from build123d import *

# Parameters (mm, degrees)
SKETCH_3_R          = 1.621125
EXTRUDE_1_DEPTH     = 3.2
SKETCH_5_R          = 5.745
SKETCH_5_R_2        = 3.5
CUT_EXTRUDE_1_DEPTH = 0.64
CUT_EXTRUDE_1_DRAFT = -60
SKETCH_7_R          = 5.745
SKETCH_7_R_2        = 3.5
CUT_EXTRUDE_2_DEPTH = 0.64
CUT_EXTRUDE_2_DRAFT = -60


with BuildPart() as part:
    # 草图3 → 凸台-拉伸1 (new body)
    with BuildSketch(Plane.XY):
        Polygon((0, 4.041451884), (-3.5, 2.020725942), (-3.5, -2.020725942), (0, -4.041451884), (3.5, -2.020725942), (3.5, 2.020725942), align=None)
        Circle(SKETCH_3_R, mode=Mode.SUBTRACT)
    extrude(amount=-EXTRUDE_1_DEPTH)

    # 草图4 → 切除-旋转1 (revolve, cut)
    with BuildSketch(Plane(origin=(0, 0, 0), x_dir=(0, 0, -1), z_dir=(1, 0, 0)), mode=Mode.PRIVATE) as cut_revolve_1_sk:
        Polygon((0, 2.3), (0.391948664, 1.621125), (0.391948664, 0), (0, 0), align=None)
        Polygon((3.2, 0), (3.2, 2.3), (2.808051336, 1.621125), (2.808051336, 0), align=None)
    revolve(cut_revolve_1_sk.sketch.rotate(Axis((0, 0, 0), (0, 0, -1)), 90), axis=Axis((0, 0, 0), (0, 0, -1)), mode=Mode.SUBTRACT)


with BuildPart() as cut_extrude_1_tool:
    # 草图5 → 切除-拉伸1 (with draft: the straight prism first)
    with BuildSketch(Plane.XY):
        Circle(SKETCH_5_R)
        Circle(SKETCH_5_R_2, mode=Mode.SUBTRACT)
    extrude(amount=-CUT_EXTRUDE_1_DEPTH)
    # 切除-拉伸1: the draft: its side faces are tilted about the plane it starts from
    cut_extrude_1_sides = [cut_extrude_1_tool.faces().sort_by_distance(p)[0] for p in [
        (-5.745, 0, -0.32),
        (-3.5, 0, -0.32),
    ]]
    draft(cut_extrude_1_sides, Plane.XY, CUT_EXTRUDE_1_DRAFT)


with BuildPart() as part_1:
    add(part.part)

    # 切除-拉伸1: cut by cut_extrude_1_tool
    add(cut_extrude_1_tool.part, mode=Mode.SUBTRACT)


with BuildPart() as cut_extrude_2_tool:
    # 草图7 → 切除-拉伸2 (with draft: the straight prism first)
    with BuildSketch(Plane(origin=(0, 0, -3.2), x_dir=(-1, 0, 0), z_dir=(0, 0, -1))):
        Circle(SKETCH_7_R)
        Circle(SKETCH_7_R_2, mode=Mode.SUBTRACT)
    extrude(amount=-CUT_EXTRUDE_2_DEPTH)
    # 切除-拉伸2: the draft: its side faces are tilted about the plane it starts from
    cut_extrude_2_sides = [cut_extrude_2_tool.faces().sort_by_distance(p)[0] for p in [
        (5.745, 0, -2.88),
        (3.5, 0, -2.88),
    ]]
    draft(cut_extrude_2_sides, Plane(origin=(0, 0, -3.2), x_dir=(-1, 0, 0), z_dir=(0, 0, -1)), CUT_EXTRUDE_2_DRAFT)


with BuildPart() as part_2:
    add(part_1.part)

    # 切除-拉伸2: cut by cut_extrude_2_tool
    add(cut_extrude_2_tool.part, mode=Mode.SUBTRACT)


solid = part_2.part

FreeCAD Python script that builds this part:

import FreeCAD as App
import Part
import Sketcher
Q = App.Units.Quantity


def faces_at(feature, points):
    """Names of the faces that lie closest to the given points."""
    faces = feature.Shape.Faces
    near = lambda p: min(range(len(faces)), key=lambda i: faces[i].distToShape(Part.Vertex(*p))[0])
    return sorted({f"Face{near(p) + 1}" for p in points})

doc = App.newDocument("Part")
body = doc.addObject("PartDesign::Body", "Body")

sketch1 = body.newObject("Sketcher::SketchObject", "Sketch")
sketch1.AttachmentSupport = (doc.getObject("XY_Plane"), [""])
sketch1.MapMode = "FlatFace"
sketch1.addGeometry([
    Part.LineSegment(App.Vector(0, 4, 0), App.Vector(-3.5, 2, 0)),
    Part.LineSegment(App.Vector(-3.5, 2, 0), App.Vector(-3.5, -2, 0)),
    Part.LineSegment(App.Vector(-3.5, -2, 0), App.Vector(0, -4, 0)),
    Part.LineSegment(App.Vector(0, -4, 0), App.Vector(3.5, -2, 0)),
    Part.LineSegment(App.Vector(3.5, -2, 0), App.Vector(3.5, 2, 0)),
    Part.LineSegment(App.Vector(3.5, 2, 0), App.Vector(0, 4, 0)),
    Part.Circle(App.Vector(0, 0, 0), App.Vector(0, 0, 1), 1.6),
], False)
sketch1.addConstraint([
    Sketcher.Constraint("Coincident", 0, 2, 1, 1),
    Sketcher.Constraint("Coincident", 1, 2, 2, 1),
    Sketcher.Constraint("Coincident", 2, 2, 3, 1),
    Sketcher.Constraint("Coincident", 3, 2, 4, 1),
    Sketcher.Constraint("Coincident", 4, 2, 5, 1),
    Sketcher.Constraint("Coincident", 5, 2, 0, 1),
    Sketcher.Constraint("Vertical", 1),
    Sketcher.Constraint("Vertical", 4),
    Sketcher.Constraint("Coincident", 6, 3, -1, 1),
    Sketcher.Constraint("Symmetric", 0, 2, 3, 2, -1, 1),
    Sketcher.Constraint("Symmetric", 2, 2, 5, 2, -1, 1),
    Sketcher.Constraint("PointOnObject", 2, 2, -2),
    Sketcher.Constraint("Parallel", 2, 5),
    Sketcher.Constraint("Horizontal", 1, 2, 3, 2),
    Sketcher.Constraint("Angle", 0, Q("-150 deg")),
    Sketcher.Constraint("DistanceX", 1, 2, 3, 2, 7.0),
    Sketcher.Constraint("Diameter", 6, 3.24225),
    Sketcher.Constraint("DistanceY", 1, 2, 1, 1, 4.041452),
])
pad1 = body.newObject("PartDesign::Pad", "Pad")
pad1.Profile = sketch1
pad1.Length = 3.2
pad1.Reversed = True

sketch2 = body.newObject("Sketcher::SketchObject", "Sketch001")
sketch2.AttachmentSupport = (doc.getObject("YZ_Plane"), [""])
sketch2.MapMode = "FlatFace"
sketch2.addGeometry([
    Part.LineSegment(App.Vector(1.62, -0.39, 0), App.Vector(2.3, 0, 0)),
    Part.LineSegment(App.Vector(2.3, 0, 0), App.Vector(0, 0, 0)),
    Part.LineSegment(App.Vector(0, 0, 0), App.Vector(0, -0.39, 0)),
    Part.LineSegment(App.Vector(0, -0.39, 0), App.Vector(1.62, -0.39, 0)),
    Part.LineSegment(App.Vector(0, -3.2, 0), App.Vector(2.3, -3.2, 0)),
    Part.LineSegment(App.Vector(2.3, -3.2, 0), App.Vector(1.62, -2.81, 0)),
    Part.LineSegment(App.Vector(1.62, -2.81, 0), App.Vector(0, -2.81, 0)),
    Part.LineSegment(App.Vector(0, -2.81, 0), App.Vector(0, -3.2, 0)),
], False)
sketch2.addConstraint([
    Sketcher.Constraint("Coincident", 0, 2, 1, 1),
    Sketcher.Constraint("Coincident", 1, 2, 2, 1),
    Sketcher.Constraint("Coincident", 2, 2, 3, 1),
    Sketcher.Constraint("Coincident", 3, 2, 0, 1),
    Sketcher.Constraint("Coincident", 4, 2, 5, 1),
    Sketcher.Constraint("Coincident", 5, 2, 6, 1),
    Sketcher.Constraint("Coincident", 6, 2, 7, 1),
    Sketcher.Constraint("Coincident", 7, 2, 4, 1),
    Sketcher.Constraint("Horizontal", 1),
    Sketcher.Constraint("Vertical", 2),
    Sketcher.Constraint("Horizontal", 3),
    Sketcher.Constraint("Horizontal", 4),
    Sketcher.Constraint("Horizontal", 6),
    Sketcher.Constraint("Vertical", 7),
    Sketcher.Constraint("Coincident", 1, 2, -1, 1),
    Sketcher.Constraint("PointOnObject", 6, 2, -2),
    Sketcher.Constraint("Vertical", 0, 2, 4, 2),
    Sketcher.Constraint("Vertical", 3, 2, 5, 2),
    Sketcher.Constraint("Equal", 2, 7),
    Sketcher.Constraint("Angle", 0, Q("30 deg")),
    Sketcher.Constraint("DistanceX", 1, 2, 1, 1, 2.3),
    Sketcher.Constraint("DistanceY", 4, 2, -1, 1, 3.2),
    Sketcher.Constraint("DistanceY", 2, 2, 2, 1, 0.391949),
])
groove = body.newObject("PartDesign::Groove", "Groove")
groove.Profile = sketch2
groove.ReferenceAxis = (sketch2, ["V_Axis"])
groove.Angle = 360
body2 = doc.addObject("PartDesign::Body", "Body001")

sketch3 = body2.newObject("Sketcher::SketchObject", "Sketch002")
sketch3.AttachmentSupport = (doc.getObject("XY_Plane001"), [""])
sketch3.MapMode = "FlatFace"
sketch3.addGeometry([
    Part.Circle(App.Vector(0, 0, 0), App.Vector(0, 0, 1), 5.7),
    Part.Circle(App.Vector(0, 0, 0), App.Vector(0, 0, 1), 3.5),
], False)
sketch3.addConstraint([
    Sketcher.Constraint("Coincident", 0, 3, -1, 1),
    Sketcher.Constraint("Coincident", 1, 3, -1, 1),
    Sketcher.Constraint("Diameter", 1, 7.0),
    Sketcher.Constraint("Diameter", 0, 11.49),
])
pad2 = body2.newObject("PartDesign::Pad", "Pad001")
pad2.Profile = sketch3
pad2.Length = 0.64
pad2.Reversed = True
doc.recompute()

draft = body2.newObject("PartDesign::Draft", "Draft")
draft.Base = (pad2, faces_at(pad2, [(-5.745, 0, -0.32), (-3.5, 0, -0.32)]))
draft.NeutralPlane = (doc.getObject("XY_Plane001"), [""])
draft.Angle = 60
draft.Reversed = True
doc.recompute()

boolean = body.newObject("PartDesign::Boolean", "Boolean")
boolean.Type = "Cut"
boolean.addObjects([body2])
body3 = doc.addObject("PartDesign::Body", "Body002")

sketch4 = body3.newObject("Sketcher::SketchObject", "Sketch003")
sketch4.AttachmentSupport = (doc.getObject("XY_Plane002"), [""])
sketch4.MapMode = "FlatFace"
sketch4.AttachmentOffset = App.Placement(App.Vector(0, 0, -3.2), App.Rotation())
sketch4.addGeometry([
    Part.Circle(App.Vector(0, 0, 0), App.Vector(0, 0, 1), 5.7),
    Part.Circle(App.Vector(0, 0, 0), App.Vector(0, 0, 1), 3.5),
], False)
sketch4.addConstraint([
    Sketcher.Constraint("Coincident", 0, 3, -1, 1),
    Sketcher.Constraint("Coincident", 1, 3, -1, 1),
    Sketcher.Constraint("Diameter", 1, 7.0),
    Sketcher.Constraint("Diameter", 0, 11.49),
])
pad3 = body3.newObject("PartDesign::Pad", "Pad002")
pad3.Profile = sketch4
pad3.Length = 0.64
doc.recompute()

datumplane = body3.newObject("PartDesign::Plane", "DatumPlane")
datumplane.AttachmentSupport = (doc.getObject("XY_Plane002"), [""])
datumplane.MapMode = "FlatFace"
datumplane.AttachmentOffset = App.Placement(App.Vector(0, 0, -3.2), App.Rotation())
draft2 = body3.newObject("PartDesign::Draft", "Draft001")
draft2.Base = (pad3, faces_at(pad3, [(5.745, 0, -2.88), (3.5, 0, -2.88)]))
draft2.NeutralPlane = (datumplane, [""])
draft2.Angle = 60
draft2.Reversed = False
doc.recompute()

boolean2 = body.newObject("PartDesign::Boolean", "Boolean001")
boolean2.Type = "Cut"
boolean2.addObjects([body3])

doc.recompute()
